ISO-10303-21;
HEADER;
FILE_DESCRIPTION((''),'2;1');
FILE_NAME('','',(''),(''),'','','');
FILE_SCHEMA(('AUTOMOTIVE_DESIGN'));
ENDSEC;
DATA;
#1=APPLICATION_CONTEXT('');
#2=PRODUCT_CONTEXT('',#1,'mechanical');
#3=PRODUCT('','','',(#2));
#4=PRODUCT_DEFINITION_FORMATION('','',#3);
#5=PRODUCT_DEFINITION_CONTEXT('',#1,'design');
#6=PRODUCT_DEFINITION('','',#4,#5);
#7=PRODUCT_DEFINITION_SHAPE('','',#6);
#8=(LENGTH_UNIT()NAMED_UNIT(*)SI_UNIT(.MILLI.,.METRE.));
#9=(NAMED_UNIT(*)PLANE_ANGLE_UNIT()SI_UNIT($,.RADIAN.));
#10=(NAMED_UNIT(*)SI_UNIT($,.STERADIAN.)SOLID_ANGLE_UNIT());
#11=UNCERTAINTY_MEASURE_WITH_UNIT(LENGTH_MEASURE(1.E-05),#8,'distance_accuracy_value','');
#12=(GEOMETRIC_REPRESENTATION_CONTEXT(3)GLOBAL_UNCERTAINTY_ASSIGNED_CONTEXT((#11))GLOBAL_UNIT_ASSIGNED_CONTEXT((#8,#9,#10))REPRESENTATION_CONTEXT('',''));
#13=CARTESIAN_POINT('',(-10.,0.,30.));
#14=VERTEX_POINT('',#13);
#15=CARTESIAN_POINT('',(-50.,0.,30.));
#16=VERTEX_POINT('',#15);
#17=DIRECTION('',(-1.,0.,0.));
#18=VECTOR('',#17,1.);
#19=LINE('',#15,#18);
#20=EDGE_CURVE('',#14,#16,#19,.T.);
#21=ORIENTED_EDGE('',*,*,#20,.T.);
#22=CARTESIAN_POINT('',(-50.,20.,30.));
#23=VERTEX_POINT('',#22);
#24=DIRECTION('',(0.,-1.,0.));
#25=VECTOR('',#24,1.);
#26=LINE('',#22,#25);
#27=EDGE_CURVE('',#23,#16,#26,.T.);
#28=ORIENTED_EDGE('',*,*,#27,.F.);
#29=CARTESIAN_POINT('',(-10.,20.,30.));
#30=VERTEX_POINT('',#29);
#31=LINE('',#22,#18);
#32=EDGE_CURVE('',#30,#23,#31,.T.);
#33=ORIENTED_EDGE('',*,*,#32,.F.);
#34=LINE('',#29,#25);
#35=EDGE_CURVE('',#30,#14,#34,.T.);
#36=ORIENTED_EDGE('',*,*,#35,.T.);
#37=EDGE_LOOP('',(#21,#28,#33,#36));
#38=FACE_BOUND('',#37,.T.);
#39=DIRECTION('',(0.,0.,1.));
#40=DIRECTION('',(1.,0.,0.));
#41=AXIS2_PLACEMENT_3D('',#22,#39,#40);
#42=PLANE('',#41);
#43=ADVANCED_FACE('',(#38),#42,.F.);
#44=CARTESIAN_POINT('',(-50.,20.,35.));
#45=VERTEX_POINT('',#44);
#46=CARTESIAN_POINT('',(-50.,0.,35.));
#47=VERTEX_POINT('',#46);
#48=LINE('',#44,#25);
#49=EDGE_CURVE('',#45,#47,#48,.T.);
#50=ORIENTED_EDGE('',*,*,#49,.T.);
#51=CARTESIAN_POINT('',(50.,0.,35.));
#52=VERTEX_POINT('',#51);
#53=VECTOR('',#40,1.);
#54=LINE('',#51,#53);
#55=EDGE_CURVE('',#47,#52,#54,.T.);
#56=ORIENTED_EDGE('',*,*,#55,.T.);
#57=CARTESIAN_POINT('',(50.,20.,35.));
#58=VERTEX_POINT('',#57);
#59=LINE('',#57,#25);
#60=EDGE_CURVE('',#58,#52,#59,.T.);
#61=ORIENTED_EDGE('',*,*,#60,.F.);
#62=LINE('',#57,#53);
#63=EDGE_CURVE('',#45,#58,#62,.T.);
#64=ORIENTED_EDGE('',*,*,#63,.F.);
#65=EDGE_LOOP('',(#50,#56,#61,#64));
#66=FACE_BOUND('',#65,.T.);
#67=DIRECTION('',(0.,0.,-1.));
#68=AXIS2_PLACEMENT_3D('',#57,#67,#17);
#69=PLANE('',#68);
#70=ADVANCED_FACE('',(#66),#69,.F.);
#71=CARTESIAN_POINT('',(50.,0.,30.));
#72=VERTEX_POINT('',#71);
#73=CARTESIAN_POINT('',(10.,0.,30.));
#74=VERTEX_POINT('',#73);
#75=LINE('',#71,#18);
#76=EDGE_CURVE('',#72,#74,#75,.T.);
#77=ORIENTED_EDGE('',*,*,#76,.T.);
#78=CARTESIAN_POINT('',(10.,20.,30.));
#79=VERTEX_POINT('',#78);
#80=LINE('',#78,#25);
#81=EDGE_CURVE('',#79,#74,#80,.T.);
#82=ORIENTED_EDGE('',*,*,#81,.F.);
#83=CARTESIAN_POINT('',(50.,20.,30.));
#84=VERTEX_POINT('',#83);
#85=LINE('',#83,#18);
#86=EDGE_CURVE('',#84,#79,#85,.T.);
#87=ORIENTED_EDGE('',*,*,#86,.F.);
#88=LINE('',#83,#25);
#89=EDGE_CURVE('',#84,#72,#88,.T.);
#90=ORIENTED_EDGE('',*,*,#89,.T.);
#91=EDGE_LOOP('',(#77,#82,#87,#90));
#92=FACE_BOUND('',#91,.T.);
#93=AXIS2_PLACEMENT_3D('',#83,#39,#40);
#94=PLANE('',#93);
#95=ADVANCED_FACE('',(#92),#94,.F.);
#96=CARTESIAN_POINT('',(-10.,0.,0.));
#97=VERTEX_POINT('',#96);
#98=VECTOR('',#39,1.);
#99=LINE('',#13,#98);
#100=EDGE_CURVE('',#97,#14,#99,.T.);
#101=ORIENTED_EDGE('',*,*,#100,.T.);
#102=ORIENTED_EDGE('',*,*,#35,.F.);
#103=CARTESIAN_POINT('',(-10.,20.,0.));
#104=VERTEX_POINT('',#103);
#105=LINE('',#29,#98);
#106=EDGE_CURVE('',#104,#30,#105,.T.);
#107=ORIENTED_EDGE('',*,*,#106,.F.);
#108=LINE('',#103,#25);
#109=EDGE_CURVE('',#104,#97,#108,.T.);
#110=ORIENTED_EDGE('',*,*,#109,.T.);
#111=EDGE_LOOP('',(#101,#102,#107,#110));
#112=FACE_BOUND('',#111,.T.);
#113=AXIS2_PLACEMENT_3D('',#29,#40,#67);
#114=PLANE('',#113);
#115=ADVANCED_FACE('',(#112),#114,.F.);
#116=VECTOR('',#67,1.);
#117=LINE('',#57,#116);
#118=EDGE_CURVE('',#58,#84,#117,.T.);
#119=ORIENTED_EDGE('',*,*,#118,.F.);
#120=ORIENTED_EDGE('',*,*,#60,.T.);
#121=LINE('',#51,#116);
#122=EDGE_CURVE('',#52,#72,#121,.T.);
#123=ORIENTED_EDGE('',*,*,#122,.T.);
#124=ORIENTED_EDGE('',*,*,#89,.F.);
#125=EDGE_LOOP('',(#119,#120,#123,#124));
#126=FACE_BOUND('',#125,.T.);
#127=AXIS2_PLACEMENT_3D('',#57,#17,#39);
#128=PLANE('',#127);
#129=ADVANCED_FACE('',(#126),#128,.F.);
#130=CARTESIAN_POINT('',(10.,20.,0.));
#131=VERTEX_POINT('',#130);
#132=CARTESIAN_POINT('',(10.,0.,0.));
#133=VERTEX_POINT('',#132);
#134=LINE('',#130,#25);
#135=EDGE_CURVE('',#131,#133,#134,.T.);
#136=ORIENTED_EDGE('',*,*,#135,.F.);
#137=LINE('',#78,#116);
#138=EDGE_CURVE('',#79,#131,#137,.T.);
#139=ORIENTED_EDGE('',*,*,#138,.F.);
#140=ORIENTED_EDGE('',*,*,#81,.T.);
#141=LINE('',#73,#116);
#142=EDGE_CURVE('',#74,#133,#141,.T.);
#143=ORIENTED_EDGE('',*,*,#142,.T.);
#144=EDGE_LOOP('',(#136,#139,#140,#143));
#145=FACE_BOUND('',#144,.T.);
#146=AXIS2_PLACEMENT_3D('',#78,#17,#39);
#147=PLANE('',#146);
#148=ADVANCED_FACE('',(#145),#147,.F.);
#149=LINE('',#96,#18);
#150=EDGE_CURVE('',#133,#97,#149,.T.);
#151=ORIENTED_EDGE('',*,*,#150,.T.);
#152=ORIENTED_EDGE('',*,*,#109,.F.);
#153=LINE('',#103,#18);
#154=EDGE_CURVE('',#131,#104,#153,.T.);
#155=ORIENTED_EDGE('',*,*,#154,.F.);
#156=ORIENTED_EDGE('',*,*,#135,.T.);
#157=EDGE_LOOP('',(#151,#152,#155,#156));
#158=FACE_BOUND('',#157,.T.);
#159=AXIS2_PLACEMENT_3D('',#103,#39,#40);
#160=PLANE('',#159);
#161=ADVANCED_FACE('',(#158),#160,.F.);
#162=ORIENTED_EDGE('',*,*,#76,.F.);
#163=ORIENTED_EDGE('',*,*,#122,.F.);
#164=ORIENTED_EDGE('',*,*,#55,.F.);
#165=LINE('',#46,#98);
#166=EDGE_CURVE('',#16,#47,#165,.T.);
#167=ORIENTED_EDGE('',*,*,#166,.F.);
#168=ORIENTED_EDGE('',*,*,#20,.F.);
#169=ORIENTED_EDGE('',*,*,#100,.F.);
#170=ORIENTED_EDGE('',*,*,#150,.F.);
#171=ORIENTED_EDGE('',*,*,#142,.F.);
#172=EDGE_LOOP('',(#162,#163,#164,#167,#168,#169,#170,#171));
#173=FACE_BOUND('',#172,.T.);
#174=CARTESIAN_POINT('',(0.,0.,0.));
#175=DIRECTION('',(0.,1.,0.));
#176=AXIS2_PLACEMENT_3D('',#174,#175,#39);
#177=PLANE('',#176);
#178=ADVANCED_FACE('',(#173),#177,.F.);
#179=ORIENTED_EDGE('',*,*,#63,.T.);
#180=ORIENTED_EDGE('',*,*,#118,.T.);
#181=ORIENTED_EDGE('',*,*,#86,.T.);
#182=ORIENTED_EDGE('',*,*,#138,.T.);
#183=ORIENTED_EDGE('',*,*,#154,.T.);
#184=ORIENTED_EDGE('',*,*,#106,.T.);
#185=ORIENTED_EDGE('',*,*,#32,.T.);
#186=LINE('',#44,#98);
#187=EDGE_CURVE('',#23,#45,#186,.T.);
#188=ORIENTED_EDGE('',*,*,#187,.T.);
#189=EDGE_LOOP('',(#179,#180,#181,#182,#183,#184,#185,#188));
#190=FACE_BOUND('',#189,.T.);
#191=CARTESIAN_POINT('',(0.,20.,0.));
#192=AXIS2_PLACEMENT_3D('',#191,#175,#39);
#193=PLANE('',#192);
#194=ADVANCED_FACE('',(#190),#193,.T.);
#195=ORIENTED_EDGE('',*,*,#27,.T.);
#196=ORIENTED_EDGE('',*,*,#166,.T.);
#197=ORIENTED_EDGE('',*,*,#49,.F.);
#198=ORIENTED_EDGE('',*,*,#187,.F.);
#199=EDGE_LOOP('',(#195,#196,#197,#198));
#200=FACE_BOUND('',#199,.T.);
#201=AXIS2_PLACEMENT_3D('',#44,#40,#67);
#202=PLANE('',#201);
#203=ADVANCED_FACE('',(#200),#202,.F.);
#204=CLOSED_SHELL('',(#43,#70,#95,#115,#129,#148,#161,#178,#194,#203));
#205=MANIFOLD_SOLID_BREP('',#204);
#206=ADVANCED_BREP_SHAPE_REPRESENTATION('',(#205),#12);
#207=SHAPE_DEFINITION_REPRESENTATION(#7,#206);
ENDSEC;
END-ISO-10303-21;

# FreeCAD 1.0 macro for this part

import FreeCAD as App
import Part
import Sketcher

doc = App.newDocument("Part")
body = doc.addObject("PartDesign::Body", "Body")

sketch1 = body.newObject("Sketcher::SketchObject", "Sketch")
sketch1.AttachmentSupport = (doc.getObject("XZ_Plane"), [""])
sketch1.MapMode = "FlatFace"
sketch1.addGeometry([
    Part.LineSegment(App.Vector(-50, 35, 0), App.Vector(50, 35, 0)),
    Part.LineSegment(App.Vector(50, 35, 0), App.Vector(50, 30, 0)),
    Part.LineSegment(App.Vector(50, 30, 0), App.Vector(10, 30, 0)),
    Part.LineSegment(App.Vector(10, 30, 0), App.Vector(10, 0, 0)),
    Part.LineSegment(App.Vector(10, 0, 0), App.Vector(-10, 0, 0)),
    Part.LineSegment(App.Vector(-10, 0, 0), App.Vector(-10, 30, 0)),
    Part.LineSegment(App.Vector(-10, 30, 0), App.Vector(-50, 30, 0)),
    Part.LineSegment(App.Vector(-50, 30, 0), App.Vector(-50, 35, 0)),
], False)
sketch1.addConstraint([
    Sketcher.Constraint("Coincident", 0, 2, 1, 1),
    Sketcher.Constraint("Coincident", 1, 2, 2, 1),
    Sketcher.Constraint("Coincident", 2, 2, 3, 1),
    Sketcher.Constraint("Coincident", 3, 2, 4, 1),
    Sketcher.Constraint("Coincident", 4, 2, 5, 1),
    Sketcher.Constraint("Coincident", 5, 2, 6, 1),
    Sketcher.Constraint("Coincident", 6, 2, 7, 1),
    Sketcher.Constraint("Coincident", 7, 2, 0, 1),
    Sketcher.Constraint("Horizontal", 0),
    Sketcher.Constraint("Vertical", 1),
    Sketcher.Constraint("Horizontal", 2),
    Sketcher.Constraint("Vertical", 3),
    Sketcher.Constraint("Horizontal", 4),
    Sketcher.Constraint("Vertical", 5),
    Sketcher.Constraint("Horizontal", 6),
    Sketcher.Constraint("Vertical", 7),
    Sketcher.Constraint("Symmetric", 3, 2, 4, 2, -1, 1),
    Sketcher.Constraint("Symmetric", 1, 2, 6, 2, -2),
    Sketcher.Constraint("DistanceX", 0, 1, 0, 2, 100.0),
    Sketcher.Constraint("DistanceX", 2, 2, 2, 1, 40.0),
    Sketcher.Constraint("DistanceY", 1, 2, 1, 1, 5.0),
    Sketcher.Constraint("DistanceY", 3, 2, 3, 1, 30.0),
])
pad1 = body.newObject("PartDesign::Pad", "Pad")
pad1.Profile = sketch1
pad1.Length = 20
pad1.Reversed = True

doc.recompute()
